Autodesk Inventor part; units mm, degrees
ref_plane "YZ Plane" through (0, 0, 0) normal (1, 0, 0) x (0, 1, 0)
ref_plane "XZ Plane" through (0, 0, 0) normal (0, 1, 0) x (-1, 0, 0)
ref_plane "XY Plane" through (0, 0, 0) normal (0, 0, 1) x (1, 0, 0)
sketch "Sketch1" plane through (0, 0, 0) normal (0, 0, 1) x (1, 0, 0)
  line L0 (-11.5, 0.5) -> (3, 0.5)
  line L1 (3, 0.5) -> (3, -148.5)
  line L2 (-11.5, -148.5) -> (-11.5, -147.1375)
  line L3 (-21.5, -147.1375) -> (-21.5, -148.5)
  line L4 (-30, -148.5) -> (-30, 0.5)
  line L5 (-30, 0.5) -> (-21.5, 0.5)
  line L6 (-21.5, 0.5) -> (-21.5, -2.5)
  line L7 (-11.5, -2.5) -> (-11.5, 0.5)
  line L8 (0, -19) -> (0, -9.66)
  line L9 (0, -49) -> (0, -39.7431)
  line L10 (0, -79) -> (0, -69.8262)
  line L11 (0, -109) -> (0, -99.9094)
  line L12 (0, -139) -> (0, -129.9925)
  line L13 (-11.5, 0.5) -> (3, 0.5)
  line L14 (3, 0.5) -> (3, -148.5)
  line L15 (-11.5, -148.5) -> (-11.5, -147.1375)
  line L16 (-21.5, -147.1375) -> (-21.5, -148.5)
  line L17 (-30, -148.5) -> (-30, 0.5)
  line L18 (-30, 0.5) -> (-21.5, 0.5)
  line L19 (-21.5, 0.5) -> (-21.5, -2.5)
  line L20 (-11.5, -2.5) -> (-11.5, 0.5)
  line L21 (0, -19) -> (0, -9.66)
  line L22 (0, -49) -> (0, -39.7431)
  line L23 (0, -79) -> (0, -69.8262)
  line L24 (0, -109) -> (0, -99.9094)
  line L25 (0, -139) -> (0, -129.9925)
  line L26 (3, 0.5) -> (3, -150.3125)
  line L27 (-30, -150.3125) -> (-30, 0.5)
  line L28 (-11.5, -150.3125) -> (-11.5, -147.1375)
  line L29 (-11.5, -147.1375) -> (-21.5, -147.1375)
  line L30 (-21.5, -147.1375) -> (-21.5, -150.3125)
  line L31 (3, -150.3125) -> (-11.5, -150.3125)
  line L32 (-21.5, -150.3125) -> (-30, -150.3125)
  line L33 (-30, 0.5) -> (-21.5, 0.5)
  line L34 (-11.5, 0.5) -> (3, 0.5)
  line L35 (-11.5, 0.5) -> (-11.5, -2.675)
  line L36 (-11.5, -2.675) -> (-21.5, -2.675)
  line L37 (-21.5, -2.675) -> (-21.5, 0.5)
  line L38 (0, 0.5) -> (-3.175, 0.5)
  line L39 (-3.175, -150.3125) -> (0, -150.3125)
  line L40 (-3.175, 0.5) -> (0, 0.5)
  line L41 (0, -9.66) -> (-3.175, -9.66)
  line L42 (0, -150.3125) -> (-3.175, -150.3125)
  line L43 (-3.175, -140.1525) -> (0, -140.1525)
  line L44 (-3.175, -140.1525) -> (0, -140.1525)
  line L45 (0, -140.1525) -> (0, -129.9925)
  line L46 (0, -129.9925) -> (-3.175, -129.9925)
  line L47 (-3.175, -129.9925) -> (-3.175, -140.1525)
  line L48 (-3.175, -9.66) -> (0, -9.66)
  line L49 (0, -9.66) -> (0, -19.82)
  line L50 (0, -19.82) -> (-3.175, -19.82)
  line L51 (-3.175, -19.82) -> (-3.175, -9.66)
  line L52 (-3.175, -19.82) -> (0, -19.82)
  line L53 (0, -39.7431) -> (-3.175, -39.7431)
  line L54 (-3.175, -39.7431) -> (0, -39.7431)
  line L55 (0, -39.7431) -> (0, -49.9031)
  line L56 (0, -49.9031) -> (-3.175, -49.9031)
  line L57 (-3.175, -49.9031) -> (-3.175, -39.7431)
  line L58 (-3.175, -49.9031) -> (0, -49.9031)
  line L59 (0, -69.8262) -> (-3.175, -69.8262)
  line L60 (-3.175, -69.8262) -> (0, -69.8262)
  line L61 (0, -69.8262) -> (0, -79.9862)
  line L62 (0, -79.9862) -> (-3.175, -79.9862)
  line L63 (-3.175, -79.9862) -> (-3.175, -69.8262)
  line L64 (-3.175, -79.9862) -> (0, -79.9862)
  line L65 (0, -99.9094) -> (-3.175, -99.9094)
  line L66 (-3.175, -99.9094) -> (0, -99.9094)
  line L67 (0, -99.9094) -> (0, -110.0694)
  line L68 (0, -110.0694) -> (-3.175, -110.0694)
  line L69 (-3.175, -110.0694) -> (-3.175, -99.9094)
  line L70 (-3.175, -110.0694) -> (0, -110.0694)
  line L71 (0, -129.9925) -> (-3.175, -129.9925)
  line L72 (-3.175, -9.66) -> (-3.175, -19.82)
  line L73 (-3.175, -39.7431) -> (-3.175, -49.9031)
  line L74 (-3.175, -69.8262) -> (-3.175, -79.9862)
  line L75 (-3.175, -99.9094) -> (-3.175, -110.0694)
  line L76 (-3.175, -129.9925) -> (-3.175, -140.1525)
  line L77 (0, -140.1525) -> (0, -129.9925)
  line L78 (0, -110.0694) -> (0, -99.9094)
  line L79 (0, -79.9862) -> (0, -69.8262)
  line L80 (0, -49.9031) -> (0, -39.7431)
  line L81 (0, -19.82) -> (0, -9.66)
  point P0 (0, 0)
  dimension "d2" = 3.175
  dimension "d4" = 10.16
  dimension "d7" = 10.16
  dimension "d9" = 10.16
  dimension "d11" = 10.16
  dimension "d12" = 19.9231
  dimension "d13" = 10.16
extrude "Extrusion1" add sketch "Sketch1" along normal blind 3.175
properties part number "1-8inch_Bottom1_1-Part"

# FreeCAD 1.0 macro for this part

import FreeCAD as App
import Part
import Sketcher
Q = App.Units.Quantity


def add_polygon(sketch, points):
    """Adds a closed chain of lines whose ends are joined by coincident constraints."""
    first, n = sketch.GeometryCount, len(points)
    for a, b in zip(points, points[1:] + points[:1]):
        sketch.addGeometry(Part.LineSegment(App.Vector(*a, 0), App.Vector(*b, 0)), False)
    for i in range(n):
        sketch.addConstraint(Sketcher.Constraint("Coincident", first + i, 2, first + (i + 1) % n, 1))

doc = App.newDocument("Part")
body = doc.addObject("PartDesign::Body", "Body")

sketch1 = body.newObject("Sketcher::SketchObject", "Sketch")
sketch1.AttachmentSupport = (doc.getObject("XY_Plane"), [""])
sketch1.MapMode = "FlatFace"
add_polygon(sketch1, [(3, 0.5), (-11.5, 0.5), (-11.5, -2.7), (-21.5, -2.7), (-21.5, 0.5), (-30, 0.5), (-30, -150.3), (-21.5, -150.3), (-21.5, -147.1), (-11.5, -147.1), (-11.5, -150.3), (3, -150.3)])
add_polygon(sketch1, [(0, -130), (0, -140.2), (-3.2, -140.2), (-3.2, -130)])
add_polygon(sketch1, [(0, -99.9), (0, -110.1), (-3.2, -110.1), (-3.2, -99.9)])
add_polygon(sketch1, [(0, -69.8), (0, -80), (-3.2, -80), (-3.2, -69.8)])
add_polygon(sketch1, [(0, -39.7), (0, -49.9), (-3.2, -49.9), (-3.2, -39.7)])
add_polygon(sketch1, [(0, -9.7), (0, -19.8), (-3.2, -19.8), (-3.2, -9.7)])
sketch1.addConstraint([
    Sketcher.Constraint("Horizontal", 0),
    Sketcher.Constraint("Vertical", 1),
    Sketcher.Constraint("Horizontal", 2),
    Sketcher.Constraint("Vertical", 3),
    Sketcher.Constraint("Horizontal", 4),
    Sketcher.Constraint("Vertical", 5),
    Sketcher.Constraint("Horizontal", 6),
    Sketcher.Constraint("Vertical", 7),
    Sketcher.Constraint("Horizontal", 8),
    Sketcher.Constraint("Vertical", 9),
    Sketcher.Constraint("Horizontal", 10),
    Sketcher.Constraint("Vertical", 11),
    Sketcher.Constraint("Vertical", 12),
    Sketcher.Constraint("Horizontal", 13),
    Sketcher.Constraint("Vertical", 14),
    Sketcher.Constraint("Horizontal", 15),
    Sketcher.Constraint("Vertical", 16),
    Sketcher.Constraint("Horizontal", 17),
    Sketcher.Constraint("Vertical", 18),
    Sketcher.Constraint("Horizontal", 19),
    Sketcher.Constraint("Vertical", 20),
    Sketcher.Constraint("Horizontal", 21),
    Sketcher.Constraint("Vertical", 22),
    Sketcher.Constraint("Horizontal", 23),
    Sketcher.Constraint("Vertical", 24),
    Sketcher.Constraint("Horizontal", 25),
    Sketcher.Constraint("Vertical", 26),
    Sketcher.Constraint("Horizontal", 27),
    Sketcher.Constraint("Vertical", 28),
    Sketcher.Constraint("Horizontal", 29),
    Sketcher.Constraint("Vertical", 30),
    Sketcher.Constraint("Horizontal", 31),
    Sketcher.Constraint("PointOnObject", 12, 2, -2),
    Sketcher.Constraint("PointOnObject", 16, 2, -2),
    Sketcher.Constraint("PointOnObject", 20, 2, -2),
    Sketcher.Constraint("PointOnObject", 24, 2, -2),
    Sketcher.Constraint("PointOnObject", 28, 2, -2),
    Sketcher.Constraint("Horizontal", 0, 2, 3, 2),
    Sketcher.Constraint("Horizontal", 6, 2, 9, 2),
    Sketcher.Constraint("Vertical", 3, 2, 6, 2),
    Sketcher.Constraint("Vertical", 1, 2, 8, 2),
    Sketcher.Constraint("Vertical", 14, 2, 17, 2),
    Sketcher.Constraint("Vertical", 18, 2, 21, 2),
    Sketcher.Constraint("Vertical", 22, 2, 25, 2),
    Sketcher.Constraint("Vertical", 26, 2, 29, 2),
    Sketcher.Constraint("Equal", 31, 1),
    Sketcher.Constraint("Equal", 3, 7),
    Sketcher.Constraint("Equal", 14, 16),
    Sketcher.Constraint("Equal", 18, 20),
    Sketcher.Constraint("Equal", 22, 24),
    Sketcher.Constraint("Equal", 26, 28),
    Sketcher.Constraint("DistanceY", 12, 2, 12, 1, Q("0.4 in")),
    Sketcher.Constraint("DistanceY", 10, 2, 12, 2, Q("0.4 in")),
    Sketcher.Constraint("DistanceY", 30, 2, 11, 2, Q("0.4 in")),
    Sketcher.Constraint("DistanceX", 13, 2, 13, 1, Q("0.125 in")),
    Sketcher.Constraint("DistanceY", 5, 2, 5, 1, Q("5.9375 in")),
    Sketcher.Constraint("DistanceY", 15, 2, 16, 2, Q("19.923 mm")),
    Sketcher.Constraint("DistanceY", 19, 2, 20, 2, Q("19.9232 mm")),
    Sketcher.Constraint("DistanceY", 23, 2, 24, 2, Q("19.923 mm")),
    Sketcher.Constraint("DistanceX", 2, 2, 2, 1, Q("0.3937 in")),
    Sketcher.Constraint("DistanceX", 0, 2, 0, 1, Q("14.5 mm")),
    Sketcher.Constraint("DistanceX", 4, 2, 4, 1, Q("8.5 mm")),
    Sketcher.Constraint("DistanceX", 4, 2, -1, 1, Q("1.1811 in")),
    Sketcher.Constraint("DistanceY", 24, 2, -1, 1, Q("1.9647 in")),
])
pad1 = body.newObject("PartDesign::Pad", "Pad")
pad1.Profile = sketch1
pad1.Length = Q("0.125 in")

doc.recompute()
